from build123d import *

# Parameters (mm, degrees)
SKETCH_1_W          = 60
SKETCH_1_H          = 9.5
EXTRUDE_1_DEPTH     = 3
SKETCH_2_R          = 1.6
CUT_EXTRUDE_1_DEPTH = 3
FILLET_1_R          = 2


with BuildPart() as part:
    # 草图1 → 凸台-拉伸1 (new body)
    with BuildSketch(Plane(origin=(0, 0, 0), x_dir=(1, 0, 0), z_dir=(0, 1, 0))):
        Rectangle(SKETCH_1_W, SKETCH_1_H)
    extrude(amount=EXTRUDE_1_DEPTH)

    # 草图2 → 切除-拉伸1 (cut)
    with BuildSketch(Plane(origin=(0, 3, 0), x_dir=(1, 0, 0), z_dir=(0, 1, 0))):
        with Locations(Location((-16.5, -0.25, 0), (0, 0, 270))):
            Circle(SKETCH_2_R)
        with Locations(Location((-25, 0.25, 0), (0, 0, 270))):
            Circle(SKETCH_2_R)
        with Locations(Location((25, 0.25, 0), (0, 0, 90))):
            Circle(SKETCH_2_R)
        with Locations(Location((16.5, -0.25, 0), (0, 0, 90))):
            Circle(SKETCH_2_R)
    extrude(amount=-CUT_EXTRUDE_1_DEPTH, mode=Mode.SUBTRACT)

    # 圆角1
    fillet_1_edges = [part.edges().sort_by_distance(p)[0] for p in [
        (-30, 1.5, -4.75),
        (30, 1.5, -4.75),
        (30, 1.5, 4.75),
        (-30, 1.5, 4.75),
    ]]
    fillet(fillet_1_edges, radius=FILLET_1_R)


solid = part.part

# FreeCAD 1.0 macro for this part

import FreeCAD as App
import Part
import Sketcher
from FreeCAD import Vector
Q = App.Units.Quantity


def edges_at(feature, points):
    """Names of the edges that pass closest to the given points."""
    edges = feature.Shape.Edges
    near = lambda p: min(range(len(edges)), key=lambda i: edges[i].distToShape(Part.Vertex(*p))[0])
    return sorted({f"Edge{near(p) + 1}" for p in points})


def add_polygon(sketch, points):
    """Adds a closed chain of lines whose ends are joined by coincident constraints."""
    first, n = sketch.GeometryCount, len(points)
    for a, b in zip(points, points[1:] + points[:1]):
        sketch.addGeometry(Part.LineSegment(App.Vector(*a, 0), App.Vector(*b, 0)), False)
    for i in range(n):
        sketch.addConstraint(Sketcher.Constraint("Coincident", first + i, 2, first + (i + 1) % n, 1))

doc = App.newDocument("Part")
body = doc.addObject("PartDesign::Body", "Body")

# Sketch on XZ plane
sketch1 = body.newObject("Sketcher::SketchObject", "Sketch")
sketch1.AttachmentSupport = (doc.getObject("XZ_Plane"), [""])
sketch1.MapMode = "FlatFace"
add_polygon(sketch1, [(-30, -4.75), (-30, 4.75), (30, 4.75), (30, -4.75)])  # lines 0-3
sketch1.addConstraint([
    Sketcher.Constraint("Vertical", 0),
    Sketcher.Constraint("Horizontal", 1),
    Sketcher.Constraint("Vertical", 2),
    Sketcher.Constraint("Horizontal", 3),
    Sketcher.Constraint("Symmetric", 0, 2, 2, 2, -1, 1),
    Sketcher.Constraint("DistanceX", 1, 1, 1, 2, Q("60 mm")),
    Sketcher.Constraint("DistanceY", 0, 1, 0, 2, Q("9.5 mm")),
])
pad1 = body.newObject("PartDesign::Pad", "Pad")
pad1.Profile = sketch1
pad1.Length = 3
pad1.Reversed = True

# Sketch on XZ plane
sketch2 = body.newObject("Sketcher::SketchObject", "Sketch001")
sketch2.AttachmentSupport = (doc.getObject("XZ_Plane"), [""])
sketch2.MapMode = "FlatFace"
sketch2.AttachmentOffset = App.Placement(Vector(0, 0, -3), App.Rotation())
sketch2.addGeometry([
    Part.Circle(Vector(-16.5, 0.25, 0), Vector(0, 0, 1), 1.6),
    Part.Circle(Vector(-25, -0.25, 0), Vector(0, 0, 1), 1.6),
    Part.Circle(Vector(25, -0.25, 0), Vector(0, 0, 1), 1.6),
    Part.Circle(Vector(16.5, 0.25, 0), Vector(0, 0, 1), 1.6),
], False)
sketch2.addConstraint([
    Sketcher.Constraint("Equal", 0, 1),
    Sketcher.Constraint("Equal", 1, 2),
    Sketcher.Constraint("Equal", 2, 3),
    Sketcher.Constraint("Symmetric", 1, 3, 2, 3, -2),
    Sketcher.Constraint("Symmetric", 0, 3, 3, 3, -2),
    Sketcher.Constraint("Diameter", 0, Q("3.2 mm")),
    Sketcher.Constraint("DistanceX", 1, 3, -1, 1, Q("25 mm")),
    Sketcher.Constraint("DistanceX", 0, 3, 3, 3, Q("33 mm")),
    Sketcher.Constraint("DistanceY", 1, 3, 0, 3, Q("0.5 mm")),
    Sketcher.Constraint("DistanceY", -1, 1, 0, 3, Q("0.25 mm")),
])
pocket1 = body.newObject("PartDesign::Pocket", "Pocket")
pocket1.Profile = sketch2
pocket1.Length = 3
pocket1.Reversed = True
doc.recompute()

fillet = body.newObject("PartDesign::Fillet", "Fillet")
fillet.Base = (pocket1, edges_at(pocket1, [
    (-30, 1.5, -4.75),
    (30, 1.5, -4.75),
    (30, 1.5, 4.75),
    (-30, 1.5, 4.75),
]))
fillet.Radius = 2

doc.recompute()
